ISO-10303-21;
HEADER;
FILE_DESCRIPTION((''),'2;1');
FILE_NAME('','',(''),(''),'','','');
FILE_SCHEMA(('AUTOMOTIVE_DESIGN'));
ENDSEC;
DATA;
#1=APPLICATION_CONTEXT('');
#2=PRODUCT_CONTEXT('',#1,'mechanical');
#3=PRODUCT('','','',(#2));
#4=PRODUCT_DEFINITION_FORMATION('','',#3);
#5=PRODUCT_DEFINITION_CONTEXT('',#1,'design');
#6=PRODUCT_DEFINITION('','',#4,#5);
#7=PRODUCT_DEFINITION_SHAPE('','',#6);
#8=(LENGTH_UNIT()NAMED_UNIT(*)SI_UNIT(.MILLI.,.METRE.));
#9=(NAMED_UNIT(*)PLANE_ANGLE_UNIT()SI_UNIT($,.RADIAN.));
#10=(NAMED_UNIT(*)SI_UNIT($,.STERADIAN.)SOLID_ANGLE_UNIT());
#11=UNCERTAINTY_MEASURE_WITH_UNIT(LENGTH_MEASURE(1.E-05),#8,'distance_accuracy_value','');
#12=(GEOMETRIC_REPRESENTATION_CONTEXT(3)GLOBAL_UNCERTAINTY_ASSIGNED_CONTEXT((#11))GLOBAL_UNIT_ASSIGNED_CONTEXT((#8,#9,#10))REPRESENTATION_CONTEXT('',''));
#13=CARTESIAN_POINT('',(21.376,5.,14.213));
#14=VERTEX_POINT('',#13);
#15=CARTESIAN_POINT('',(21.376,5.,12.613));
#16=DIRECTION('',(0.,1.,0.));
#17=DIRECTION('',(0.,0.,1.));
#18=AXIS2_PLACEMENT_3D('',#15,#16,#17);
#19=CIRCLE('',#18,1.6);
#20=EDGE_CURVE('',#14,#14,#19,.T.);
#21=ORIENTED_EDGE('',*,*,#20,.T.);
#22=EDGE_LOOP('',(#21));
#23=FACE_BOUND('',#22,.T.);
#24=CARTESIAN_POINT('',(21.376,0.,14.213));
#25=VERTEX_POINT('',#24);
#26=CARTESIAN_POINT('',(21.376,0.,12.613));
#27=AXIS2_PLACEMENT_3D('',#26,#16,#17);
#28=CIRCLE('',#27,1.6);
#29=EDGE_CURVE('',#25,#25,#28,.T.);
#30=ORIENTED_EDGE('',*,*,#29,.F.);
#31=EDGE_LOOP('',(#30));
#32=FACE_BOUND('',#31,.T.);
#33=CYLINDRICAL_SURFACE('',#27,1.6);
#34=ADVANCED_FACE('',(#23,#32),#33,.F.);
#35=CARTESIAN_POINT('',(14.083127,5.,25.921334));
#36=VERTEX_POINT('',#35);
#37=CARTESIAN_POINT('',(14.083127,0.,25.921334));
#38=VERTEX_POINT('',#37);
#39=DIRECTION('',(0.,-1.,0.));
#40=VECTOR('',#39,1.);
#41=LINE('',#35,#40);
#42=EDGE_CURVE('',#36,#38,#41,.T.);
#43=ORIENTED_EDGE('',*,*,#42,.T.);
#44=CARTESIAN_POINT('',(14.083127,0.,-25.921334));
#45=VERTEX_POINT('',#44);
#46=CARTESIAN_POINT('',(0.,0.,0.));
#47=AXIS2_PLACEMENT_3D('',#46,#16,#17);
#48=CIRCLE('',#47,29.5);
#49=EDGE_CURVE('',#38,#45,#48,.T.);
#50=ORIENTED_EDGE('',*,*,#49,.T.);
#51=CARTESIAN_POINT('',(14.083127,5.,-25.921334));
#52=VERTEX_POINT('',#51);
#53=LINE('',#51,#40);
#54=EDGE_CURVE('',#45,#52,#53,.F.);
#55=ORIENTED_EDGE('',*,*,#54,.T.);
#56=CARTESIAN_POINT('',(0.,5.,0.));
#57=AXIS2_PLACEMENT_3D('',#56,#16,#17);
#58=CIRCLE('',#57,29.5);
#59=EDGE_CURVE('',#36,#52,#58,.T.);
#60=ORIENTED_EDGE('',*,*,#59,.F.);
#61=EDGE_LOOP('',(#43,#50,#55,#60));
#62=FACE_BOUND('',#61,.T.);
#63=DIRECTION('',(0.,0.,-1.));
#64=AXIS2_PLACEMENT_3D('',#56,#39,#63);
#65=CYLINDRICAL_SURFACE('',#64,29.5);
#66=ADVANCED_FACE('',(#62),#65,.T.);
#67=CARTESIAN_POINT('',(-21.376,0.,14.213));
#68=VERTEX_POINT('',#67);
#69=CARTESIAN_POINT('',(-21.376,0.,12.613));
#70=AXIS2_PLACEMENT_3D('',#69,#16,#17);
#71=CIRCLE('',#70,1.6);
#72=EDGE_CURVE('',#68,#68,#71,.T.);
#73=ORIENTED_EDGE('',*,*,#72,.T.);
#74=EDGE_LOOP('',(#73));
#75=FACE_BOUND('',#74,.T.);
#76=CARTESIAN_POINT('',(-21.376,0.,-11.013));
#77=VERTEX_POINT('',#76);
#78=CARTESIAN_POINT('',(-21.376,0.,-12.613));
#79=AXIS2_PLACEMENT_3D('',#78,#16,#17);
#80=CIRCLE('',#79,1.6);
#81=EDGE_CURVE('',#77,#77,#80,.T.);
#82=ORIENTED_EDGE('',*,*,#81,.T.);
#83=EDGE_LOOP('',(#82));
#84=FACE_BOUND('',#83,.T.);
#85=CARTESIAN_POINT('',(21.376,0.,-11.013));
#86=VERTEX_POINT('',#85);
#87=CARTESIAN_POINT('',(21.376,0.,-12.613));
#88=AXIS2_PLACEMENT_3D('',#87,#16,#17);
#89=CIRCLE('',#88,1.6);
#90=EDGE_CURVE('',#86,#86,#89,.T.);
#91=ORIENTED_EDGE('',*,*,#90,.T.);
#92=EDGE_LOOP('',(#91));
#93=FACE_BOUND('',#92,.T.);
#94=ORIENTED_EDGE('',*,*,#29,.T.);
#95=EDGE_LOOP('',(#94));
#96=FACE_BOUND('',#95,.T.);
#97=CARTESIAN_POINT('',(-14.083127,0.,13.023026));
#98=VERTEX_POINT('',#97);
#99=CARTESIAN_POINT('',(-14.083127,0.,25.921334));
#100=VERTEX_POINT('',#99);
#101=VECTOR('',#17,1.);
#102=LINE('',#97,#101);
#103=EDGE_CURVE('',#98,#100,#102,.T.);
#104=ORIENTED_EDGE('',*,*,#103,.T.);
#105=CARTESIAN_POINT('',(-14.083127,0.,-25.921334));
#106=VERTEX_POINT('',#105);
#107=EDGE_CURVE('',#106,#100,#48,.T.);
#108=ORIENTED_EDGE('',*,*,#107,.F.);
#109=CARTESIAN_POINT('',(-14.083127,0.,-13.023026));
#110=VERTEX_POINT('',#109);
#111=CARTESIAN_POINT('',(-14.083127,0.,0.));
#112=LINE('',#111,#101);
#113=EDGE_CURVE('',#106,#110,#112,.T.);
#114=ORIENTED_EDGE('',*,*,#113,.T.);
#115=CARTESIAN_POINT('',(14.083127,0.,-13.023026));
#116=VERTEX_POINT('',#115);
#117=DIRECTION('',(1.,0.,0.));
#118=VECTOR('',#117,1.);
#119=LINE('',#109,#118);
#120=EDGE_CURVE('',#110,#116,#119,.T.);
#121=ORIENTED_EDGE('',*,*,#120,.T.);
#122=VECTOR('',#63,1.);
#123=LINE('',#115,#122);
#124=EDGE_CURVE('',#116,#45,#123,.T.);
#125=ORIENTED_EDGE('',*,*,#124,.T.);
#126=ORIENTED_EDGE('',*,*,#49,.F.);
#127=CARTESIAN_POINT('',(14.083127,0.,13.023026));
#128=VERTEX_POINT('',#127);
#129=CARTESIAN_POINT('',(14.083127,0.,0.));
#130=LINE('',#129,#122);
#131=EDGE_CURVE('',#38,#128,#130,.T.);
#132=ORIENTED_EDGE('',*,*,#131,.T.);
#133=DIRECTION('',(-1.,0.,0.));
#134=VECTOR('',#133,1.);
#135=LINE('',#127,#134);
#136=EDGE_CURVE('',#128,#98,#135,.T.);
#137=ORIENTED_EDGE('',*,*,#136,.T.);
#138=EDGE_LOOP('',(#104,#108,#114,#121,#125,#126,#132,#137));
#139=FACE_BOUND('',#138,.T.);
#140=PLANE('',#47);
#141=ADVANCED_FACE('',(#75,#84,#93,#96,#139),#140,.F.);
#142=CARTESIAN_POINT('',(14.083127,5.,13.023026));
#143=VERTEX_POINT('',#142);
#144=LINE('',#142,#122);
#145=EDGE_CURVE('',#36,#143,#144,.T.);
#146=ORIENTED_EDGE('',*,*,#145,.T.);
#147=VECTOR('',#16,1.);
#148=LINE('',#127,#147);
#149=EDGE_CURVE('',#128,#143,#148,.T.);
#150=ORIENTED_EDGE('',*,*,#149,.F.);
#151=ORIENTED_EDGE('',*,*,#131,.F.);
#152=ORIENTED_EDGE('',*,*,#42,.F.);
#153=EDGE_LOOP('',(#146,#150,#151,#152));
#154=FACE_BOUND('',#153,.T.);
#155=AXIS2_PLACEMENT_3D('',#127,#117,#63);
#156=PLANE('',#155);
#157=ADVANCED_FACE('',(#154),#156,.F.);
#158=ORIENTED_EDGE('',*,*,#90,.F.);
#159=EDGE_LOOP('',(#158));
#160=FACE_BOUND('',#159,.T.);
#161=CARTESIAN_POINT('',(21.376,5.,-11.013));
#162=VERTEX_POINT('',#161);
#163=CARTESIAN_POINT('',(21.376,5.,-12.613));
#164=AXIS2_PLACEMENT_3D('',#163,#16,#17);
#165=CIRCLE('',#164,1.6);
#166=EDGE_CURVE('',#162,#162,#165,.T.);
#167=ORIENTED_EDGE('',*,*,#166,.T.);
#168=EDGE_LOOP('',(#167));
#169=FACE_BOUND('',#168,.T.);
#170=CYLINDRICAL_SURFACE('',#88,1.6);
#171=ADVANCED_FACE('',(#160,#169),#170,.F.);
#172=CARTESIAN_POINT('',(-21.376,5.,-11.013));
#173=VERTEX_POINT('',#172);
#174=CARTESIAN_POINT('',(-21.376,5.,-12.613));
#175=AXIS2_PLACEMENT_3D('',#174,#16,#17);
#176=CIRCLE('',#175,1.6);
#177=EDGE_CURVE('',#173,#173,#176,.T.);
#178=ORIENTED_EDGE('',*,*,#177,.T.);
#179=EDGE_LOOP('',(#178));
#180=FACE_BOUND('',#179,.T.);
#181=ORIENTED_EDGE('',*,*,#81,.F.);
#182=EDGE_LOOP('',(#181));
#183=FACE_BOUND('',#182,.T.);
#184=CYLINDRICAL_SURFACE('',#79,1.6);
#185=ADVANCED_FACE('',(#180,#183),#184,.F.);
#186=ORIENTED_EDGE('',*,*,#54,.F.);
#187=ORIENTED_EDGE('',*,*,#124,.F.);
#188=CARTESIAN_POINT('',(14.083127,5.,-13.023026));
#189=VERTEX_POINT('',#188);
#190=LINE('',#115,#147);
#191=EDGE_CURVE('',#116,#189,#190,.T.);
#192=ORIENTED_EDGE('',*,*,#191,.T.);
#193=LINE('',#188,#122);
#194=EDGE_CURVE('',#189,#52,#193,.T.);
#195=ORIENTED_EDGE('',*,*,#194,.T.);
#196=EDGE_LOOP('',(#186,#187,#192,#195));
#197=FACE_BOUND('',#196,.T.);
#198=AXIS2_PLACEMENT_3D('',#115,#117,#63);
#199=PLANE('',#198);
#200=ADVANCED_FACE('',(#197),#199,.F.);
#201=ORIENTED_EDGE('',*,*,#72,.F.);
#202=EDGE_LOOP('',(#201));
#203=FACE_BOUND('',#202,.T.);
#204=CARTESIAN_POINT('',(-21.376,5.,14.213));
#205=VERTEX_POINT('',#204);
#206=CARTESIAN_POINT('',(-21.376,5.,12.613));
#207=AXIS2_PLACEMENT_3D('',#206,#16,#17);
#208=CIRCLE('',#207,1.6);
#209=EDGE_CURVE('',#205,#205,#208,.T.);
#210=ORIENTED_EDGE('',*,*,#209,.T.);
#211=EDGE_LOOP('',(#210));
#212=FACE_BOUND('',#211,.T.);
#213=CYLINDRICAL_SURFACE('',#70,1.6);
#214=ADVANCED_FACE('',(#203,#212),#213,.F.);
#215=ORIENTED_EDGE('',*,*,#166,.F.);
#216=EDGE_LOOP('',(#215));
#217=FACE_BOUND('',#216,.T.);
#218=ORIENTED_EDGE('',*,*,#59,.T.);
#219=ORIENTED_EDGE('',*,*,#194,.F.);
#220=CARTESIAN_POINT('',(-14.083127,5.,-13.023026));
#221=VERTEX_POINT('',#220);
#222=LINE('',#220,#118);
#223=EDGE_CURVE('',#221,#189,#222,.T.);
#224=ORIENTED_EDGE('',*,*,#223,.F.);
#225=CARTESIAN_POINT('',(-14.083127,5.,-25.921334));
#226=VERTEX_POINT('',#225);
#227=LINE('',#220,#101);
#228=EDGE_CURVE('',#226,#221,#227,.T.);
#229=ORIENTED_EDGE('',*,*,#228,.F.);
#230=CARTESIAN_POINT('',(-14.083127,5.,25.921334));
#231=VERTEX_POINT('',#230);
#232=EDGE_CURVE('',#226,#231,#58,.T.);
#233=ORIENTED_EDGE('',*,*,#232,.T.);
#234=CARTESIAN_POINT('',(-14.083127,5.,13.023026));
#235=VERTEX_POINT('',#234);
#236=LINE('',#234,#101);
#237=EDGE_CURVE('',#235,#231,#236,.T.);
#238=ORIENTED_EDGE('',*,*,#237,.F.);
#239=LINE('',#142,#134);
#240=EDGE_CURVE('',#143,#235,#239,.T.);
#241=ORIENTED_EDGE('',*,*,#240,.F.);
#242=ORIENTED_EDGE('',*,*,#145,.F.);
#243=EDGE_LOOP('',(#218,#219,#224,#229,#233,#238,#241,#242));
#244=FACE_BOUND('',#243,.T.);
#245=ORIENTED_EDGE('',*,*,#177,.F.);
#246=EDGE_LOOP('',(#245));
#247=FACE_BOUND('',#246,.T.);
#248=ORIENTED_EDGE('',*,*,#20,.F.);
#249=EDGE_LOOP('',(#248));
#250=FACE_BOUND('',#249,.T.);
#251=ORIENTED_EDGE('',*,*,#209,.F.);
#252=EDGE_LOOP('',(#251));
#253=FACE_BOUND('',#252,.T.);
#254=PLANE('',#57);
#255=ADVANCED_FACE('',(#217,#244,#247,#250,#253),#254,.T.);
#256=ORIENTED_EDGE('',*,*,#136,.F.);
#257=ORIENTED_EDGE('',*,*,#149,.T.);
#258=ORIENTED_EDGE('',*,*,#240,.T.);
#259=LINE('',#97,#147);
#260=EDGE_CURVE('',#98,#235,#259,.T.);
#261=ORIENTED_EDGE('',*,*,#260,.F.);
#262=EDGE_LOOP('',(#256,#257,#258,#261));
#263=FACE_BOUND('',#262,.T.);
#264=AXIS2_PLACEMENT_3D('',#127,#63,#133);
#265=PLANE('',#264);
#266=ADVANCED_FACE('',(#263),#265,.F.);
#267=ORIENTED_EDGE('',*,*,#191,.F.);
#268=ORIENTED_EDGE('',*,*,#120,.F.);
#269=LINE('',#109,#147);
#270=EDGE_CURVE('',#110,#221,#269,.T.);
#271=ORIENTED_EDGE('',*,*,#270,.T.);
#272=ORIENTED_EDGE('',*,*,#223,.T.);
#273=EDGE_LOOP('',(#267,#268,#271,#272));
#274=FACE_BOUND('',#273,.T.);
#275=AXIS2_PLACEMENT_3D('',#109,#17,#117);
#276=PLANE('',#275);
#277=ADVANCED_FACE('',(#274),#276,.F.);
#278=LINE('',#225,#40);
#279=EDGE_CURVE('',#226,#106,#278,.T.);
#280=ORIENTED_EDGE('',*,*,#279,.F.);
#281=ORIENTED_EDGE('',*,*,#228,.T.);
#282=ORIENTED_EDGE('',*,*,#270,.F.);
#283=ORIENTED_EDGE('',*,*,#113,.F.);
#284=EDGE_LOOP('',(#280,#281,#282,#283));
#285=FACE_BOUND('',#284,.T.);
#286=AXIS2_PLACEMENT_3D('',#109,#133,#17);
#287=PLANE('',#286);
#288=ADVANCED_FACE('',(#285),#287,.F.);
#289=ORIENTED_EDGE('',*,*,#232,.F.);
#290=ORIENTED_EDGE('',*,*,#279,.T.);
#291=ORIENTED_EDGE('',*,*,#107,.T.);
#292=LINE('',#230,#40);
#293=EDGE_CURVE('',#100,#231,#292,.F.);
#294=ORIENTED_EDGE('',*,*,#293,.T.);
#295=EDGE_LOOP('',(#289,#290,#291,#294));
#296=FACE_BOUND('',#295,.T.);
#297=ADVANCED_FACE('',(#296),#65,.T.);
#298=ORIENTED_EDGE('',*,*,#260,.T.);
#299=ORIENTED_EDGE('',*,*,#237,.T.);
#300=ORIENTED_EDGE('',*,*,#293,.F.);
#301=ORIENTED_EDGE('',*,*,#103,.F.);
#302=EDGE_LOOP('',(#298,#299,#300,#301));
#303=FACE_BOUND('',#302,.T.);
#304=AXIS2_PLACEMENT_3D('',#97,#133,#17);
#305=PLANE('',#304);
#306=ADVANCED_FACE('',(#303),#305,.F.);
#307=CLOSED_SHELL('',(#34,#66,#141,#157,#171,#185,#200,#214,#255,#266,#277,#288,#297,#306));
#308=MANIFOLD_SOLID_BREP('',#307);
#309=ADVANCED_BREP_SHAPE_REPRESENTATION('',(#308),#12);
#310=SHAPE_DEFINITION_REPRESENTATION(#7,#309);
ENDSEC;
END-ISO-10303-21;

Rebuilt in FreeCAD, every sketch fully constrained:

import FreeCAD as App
import Part
import Sketcher

V = App.Vector
Q = App.Units.Quantity

doc = App.newDocument("Part")
params = doc.addObject("Spreadsheet::Sheet", "Params")
for row, (alias, value) in enumerate([
    ("sketch1_diameter", "59 mm"),
    ("pad1_length", "5 mm"),
    ("sketch3_diameter", "3.2 mm"),
], start=1):
    params.set(f"A{row}", alias)
    params.set(f"B{row}", "=" + value)
    params.setAlias(f"B{row}", alias)

body = doc.addObject("PartDesign::Body", "Body")

sketch1 = doc.addObject("Sketcher::SketchObject", "Sketch")
body.addObject(sketch1)
sketch1.AttachmentSupport = (doc.XZ_Plane, [""])
sketch1.MapMode = "FlatFace"
sketch1.addGeometry(Part.Circle(V(0, 0, 0), V(0, 0, 1), 30), False)
sketch1.addConstraint([
    Sketcher.Constraint("Coincident", 0, 3, -1, 1),
    Sketcher.Constraint("Diameter", 0, Q("59 mm")),
])
sketch1.setExpression("Constraints[1]", "Params.sketch1_diameter")
pad1 = doc.addObject("PartDesign::Pad", "Pad")
body.addObject(pad1)
pad1.Profile = sketch1
pad1.setExpression("Length", "Params.pad1_length")
pad1.Reversed = True

sketch2 = doc.addObject("Sketcher::SketchObject", "Sketch001")
body.addObject(sketch2)
sketch2.AttachmentSupport = (doc.XZ_Plane, [""])
sketch2.MapMode = "FlatFace"
sketch2.AttachmentOffset = App.Placement(V(0, 0, -5), App.Rotation())
sketch2.addGeometry([
    Part.LineSegment(V(-14, -46, 0), V(-14, -13, 0)),
    Part.LineSegment(V(-14, -13, 0), V(14, -13, 0)),
    Part.LineSegment(V(14, -13, 0), V(14, -46, 0)),
    Part.LineSegment(V(14, -46, 0), V(-14, -46, 0)),
    Part.LineSegment(V(-14, 13, 0), V(-14, 46, 0)),
    Part.LineSegment(V(-14, 46, 0), V(14, 46, 0)),
    Part.LineSegment(V(14, 46, 0), V(14, 13, 0)),
    Part.LineSegment(V(14, 13, 0), V(-14, 13, 0)),
], False)
sketch2.addConstraint([
    Sketcher.Constraint("Coincident", 0, 2, 1, 1),
    Sketcher.Constraint("Coincident", 1, 2, 2, 1),
    Sketcher.Constraint("Coincident", 2, 2, 3, 1),
    Sketcher.Constraint("Coincident", 3, 2, 0, 1),
    Sketcher.Constraint("Coincident", 4, 2, 5, 1),
    Sketcher.Constraint("Coincident", 5, 2, 6, 1),
    Sketcher.Constraint("Coincident", 6, 2, 7, 1),
    Sketcher.Constraint("Coincident", 7, 2, 4, 1),
    Sketcher.Constraint("Vertical", 0),
    Sketcher.Constraint("Horizontal", 1),
    Sketcher.Constraint("Vertical", 2),
    Sketcher.Constraint("Horizontal", 3),
    Sketcher.Constraint("Vertical", 4),
    Sketcher.Constraint("Horizontal", 5),
    Sketcher.Constraint("Vertical", 6),
    Sketcher.Constraint("Horizontal", 7),
    Sketcher.Constraint("Symmetric", 2, 2, 4, 2, -1, 1),
    Sketcher.Constraint("Symmetric", 0, 2, 6, 2, -1, 1),
    Sketcher.Constraint("Vertical", 3, 2, 4, 2),
    Sketcher.Constraint("DistanceY", 0, 2, 4, 2, Q("59 mm")),
    Sketcher.Constraint("DistanceY", 0, 1, 0, 2, Q("32.953949 mm")),
    Sketcher.Constraint("DistanceX", 1, 1, 1, 2, Q("28.166253 mm")),
])
pocket1 = doc.addObject("PartDesign::Pocket", "Pocket")
body.addObject(pocket1)
pocket1.Profile = sketch2
pocket1.Type = "ThroughAll"
pocket1.Reversed = True

sketch3 = doc.addObject("Sketcher::SketchObject", "Sketch002")
body.addObject(sketch3)
sketch3.AttachmentSupport = (doc.XZ_Plane, [""])
sketch3.MapMode = "FlatFace"
sketch3.AttachmentOffset = App.Placement(V(0, 0, -5), App.Rotation())
sketch3.addGeometry([
    Part.Circle(V(-21.4, -12.6, 0), V(0, 0, 1), 1.6),
    Part.Circle(V(-21.4, 12.6, 0), V(0, 0, 1), 1.6),
    Part.Circle(V(21.4, -12.6, 0), V(0, 0, 1), 1.6),
    Part.Circle(V(21.4, 12.6, 0), V(0, 0, 1), 1.6),
], False)
sketch3.addConstraint([
    Sketcher.Constraint("Equal", 0, 1),
    Sketcher.Constraint("Equal", 1, 2),
    Sketcher.Constraint("Equal", 2, 3),
    Sketcher.Constraint("Symmetric", 1, 3, 2, 3, -1, 1),
    Sketcher.Constraint("Symmetric", 0, 3, 3, 3, -1, 1),
    Sketcher.Constraint("Symmetric", 0, 3, 2, 3, -2),
    Sketcher.Constraint("Diameter", 0, Q("3.2 mm")),
    Sketcher.Constraint("DistanceX", 0, 3, -1, 1, Q("21.376 mm")),
    Sketcher.Constraint("DistanceY", 0, 3, -1, 1, Q("12.613 mm")),
])
sketch3.setExpression("Constraints[6]", "Params.sketch3_diameter")
pocket2 = doc.addObject("PartDesign::Pocket", "Pocket001")
body.addObject(pocket2)
pocket2.Profile = sketch3
pocket2.Type = "ThroughAll"
pocket2.Reversed = True

doc.recompute()
